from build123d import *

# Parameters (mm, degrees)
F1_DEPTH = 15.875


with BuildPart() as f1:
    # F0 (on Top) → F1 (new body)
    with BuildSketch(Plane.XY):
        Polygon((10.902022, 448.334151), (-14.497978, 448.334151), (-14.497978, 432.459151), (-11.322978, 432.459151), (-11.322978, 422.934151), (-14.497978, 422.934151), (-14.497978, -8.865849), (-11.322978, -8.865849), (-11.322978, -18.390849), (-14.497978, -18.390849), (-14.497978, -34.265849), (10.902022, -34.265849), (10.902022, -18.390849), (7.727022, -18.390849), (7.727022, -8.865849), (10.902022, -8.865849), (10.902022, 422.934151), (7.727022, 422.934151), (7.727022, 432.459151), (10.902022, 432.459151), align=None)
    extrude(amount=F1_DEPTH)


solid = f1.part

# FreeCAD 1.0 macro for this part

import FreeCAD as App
import Part
import Sketcher

V = App.Vector
Q = App.Units.Quantity


def add_polygon(sketch, points):
    """Adds a closed chain of lines whose ends are joined by coincident constraints."""
    first, n = sketch.GeometryCount, len(points)
    for a, b in zip(points, points[1:] + points[:1]):
        sketch.addGeometry(Part.LineSegment(App.Vector(*a, 0), App.Vector(*b, 0)), False)
    for i in range(n):
        sketch.addConstraint(Sketcher.Constraint("Coincident", first + i, 2, first + (i + 1) % n, 1))

doc = App.newDocument("Part")
body = doc.addObject("PartDesign::Body", "Body")

sketch1 = doc.addObject("Sketcher::SketchObject", "Sketch")
body.addObject(sketch1)
sketch1.AttachmentSupport = (doc.XY_Plane, [""])
sketch1.MapMode = "FlatFace"
add_polygon(sketch1, [(10.9, 448.3), (-14.5, 448.3), (-14.5, 432.5), (-11.3, 432.5), (-11.3, 422.9), (-14.5, 422.9), (-14.5, -8.9), (-11.3, -8.9), (-11.3, -18.4), (-14.5, -18.4), (-14.5, -34.3), (10.9, -34.3), (10.9, -18.4), (7.7, -18.4), (7.7, -8.9), (10.9, -8.9), (10.9, 422.9), (7.7, 422.9), (7.7, 432.5), (10.9, 432.5)])
sketch1.addConstraint([
    Sketcher.Constraint("Horizontal", 0),
    Sketcher.Constraint("Vertical", 1),
    Sketcher.Constraint("Horizontal", 2),
    Sketcher.Constraint("Vertical", 3),
    Sketcher.Constraint("Horizontal", 4),
    Sketcher.Constraint("Vertical", 5),
    Sketcher.Constraint("Horizontal", 6),
    Sketcher.Constraint("Vertical", 7),
    Sketcher.Constraint("Horizontal", 8),
    Sketcher.Constraint("Vertical", 9),
    Sketcher.Constraint("Horizontal", 10),
    Sketcher.Constraint("Vertical", 11),
    Sketcher.Constraint("Horizontal", 12),
    Sketcher.Constraint("Vertical", 13),
    Sketcher.Constraint("Horizontal", 14),
    Sketcher.Constraint("Vertical", 15),
    Sketcher.Constraint("Horizontal", 16),
    Sketcher.Constraint("Vertical", 17),
    Sketcher.Constraint("Horizontal", 18),
    Sketcher.Constraint("Vertical", 19),
    Sketcher.Constraint("Horizontal", 8, 2, 11, 2),
    Sketcher.Constraint("Horizontal", 6, 2, 13, 2),
    Sketcher.Constraint("Horizontal", 4, 2, 15, 2),
    Sketcher.Constraint("Horizontal", 2, 2, 17, 2),
    Sketcher.Constraint("Vertical", 1, 2, 4, 2),
    Sketcher.Constraint("Vertical", 3, 2, 6, 2),
    Sketcher.Constraint("Vertical", 5, 2, 8, 2),
    Sketcher.Constraint("Vertical", 11, 2, 14, 2),
    Sketcher.Constraint("Vertical", 13, 2, 16, 2),
    Sketcher.Constraint("Vertical", 15, 2, 18, 2),
    Sketcher.Constraint("Equal", 8, 12),
    Sketcher.Constraint("Equal", 3, 7),
    Sketcher.Constraint("Equal", 1, 9),
    Sketcher.Constraint("DistanceX", 0, 2, 0, 1, Q("1 in")),
    Sketcher.Constraint("DistanceY", 5, 2, 5, 1, Q("17 in")),
    Sketcher.Constraint("DistanceY", 3, 2, 0, 2, Q("1 in")),
    Sketcher.Constraint("DistanceX", 2, 1, 2, 2, Q("0.125 in")),
    Sketcher.Constraint("DistanceY", 1, 2, 1, 1, Q("0.625 in")),
    Sketcher.Constraint("DistanceY", -1, 1, 0, 2, Q("448.334151 mm")),
    Sketcher.Constraint("DistanceX", 2, 2, -1, 1, Q("11.322978 mm")),
])
pad1 = doc.addObject("PartDesign::Pad", "Pad")
body.addObject(pad1)
pad1.Profile = sketch1
pad1.Length = Q("0.625 in")

doc.recompute()
